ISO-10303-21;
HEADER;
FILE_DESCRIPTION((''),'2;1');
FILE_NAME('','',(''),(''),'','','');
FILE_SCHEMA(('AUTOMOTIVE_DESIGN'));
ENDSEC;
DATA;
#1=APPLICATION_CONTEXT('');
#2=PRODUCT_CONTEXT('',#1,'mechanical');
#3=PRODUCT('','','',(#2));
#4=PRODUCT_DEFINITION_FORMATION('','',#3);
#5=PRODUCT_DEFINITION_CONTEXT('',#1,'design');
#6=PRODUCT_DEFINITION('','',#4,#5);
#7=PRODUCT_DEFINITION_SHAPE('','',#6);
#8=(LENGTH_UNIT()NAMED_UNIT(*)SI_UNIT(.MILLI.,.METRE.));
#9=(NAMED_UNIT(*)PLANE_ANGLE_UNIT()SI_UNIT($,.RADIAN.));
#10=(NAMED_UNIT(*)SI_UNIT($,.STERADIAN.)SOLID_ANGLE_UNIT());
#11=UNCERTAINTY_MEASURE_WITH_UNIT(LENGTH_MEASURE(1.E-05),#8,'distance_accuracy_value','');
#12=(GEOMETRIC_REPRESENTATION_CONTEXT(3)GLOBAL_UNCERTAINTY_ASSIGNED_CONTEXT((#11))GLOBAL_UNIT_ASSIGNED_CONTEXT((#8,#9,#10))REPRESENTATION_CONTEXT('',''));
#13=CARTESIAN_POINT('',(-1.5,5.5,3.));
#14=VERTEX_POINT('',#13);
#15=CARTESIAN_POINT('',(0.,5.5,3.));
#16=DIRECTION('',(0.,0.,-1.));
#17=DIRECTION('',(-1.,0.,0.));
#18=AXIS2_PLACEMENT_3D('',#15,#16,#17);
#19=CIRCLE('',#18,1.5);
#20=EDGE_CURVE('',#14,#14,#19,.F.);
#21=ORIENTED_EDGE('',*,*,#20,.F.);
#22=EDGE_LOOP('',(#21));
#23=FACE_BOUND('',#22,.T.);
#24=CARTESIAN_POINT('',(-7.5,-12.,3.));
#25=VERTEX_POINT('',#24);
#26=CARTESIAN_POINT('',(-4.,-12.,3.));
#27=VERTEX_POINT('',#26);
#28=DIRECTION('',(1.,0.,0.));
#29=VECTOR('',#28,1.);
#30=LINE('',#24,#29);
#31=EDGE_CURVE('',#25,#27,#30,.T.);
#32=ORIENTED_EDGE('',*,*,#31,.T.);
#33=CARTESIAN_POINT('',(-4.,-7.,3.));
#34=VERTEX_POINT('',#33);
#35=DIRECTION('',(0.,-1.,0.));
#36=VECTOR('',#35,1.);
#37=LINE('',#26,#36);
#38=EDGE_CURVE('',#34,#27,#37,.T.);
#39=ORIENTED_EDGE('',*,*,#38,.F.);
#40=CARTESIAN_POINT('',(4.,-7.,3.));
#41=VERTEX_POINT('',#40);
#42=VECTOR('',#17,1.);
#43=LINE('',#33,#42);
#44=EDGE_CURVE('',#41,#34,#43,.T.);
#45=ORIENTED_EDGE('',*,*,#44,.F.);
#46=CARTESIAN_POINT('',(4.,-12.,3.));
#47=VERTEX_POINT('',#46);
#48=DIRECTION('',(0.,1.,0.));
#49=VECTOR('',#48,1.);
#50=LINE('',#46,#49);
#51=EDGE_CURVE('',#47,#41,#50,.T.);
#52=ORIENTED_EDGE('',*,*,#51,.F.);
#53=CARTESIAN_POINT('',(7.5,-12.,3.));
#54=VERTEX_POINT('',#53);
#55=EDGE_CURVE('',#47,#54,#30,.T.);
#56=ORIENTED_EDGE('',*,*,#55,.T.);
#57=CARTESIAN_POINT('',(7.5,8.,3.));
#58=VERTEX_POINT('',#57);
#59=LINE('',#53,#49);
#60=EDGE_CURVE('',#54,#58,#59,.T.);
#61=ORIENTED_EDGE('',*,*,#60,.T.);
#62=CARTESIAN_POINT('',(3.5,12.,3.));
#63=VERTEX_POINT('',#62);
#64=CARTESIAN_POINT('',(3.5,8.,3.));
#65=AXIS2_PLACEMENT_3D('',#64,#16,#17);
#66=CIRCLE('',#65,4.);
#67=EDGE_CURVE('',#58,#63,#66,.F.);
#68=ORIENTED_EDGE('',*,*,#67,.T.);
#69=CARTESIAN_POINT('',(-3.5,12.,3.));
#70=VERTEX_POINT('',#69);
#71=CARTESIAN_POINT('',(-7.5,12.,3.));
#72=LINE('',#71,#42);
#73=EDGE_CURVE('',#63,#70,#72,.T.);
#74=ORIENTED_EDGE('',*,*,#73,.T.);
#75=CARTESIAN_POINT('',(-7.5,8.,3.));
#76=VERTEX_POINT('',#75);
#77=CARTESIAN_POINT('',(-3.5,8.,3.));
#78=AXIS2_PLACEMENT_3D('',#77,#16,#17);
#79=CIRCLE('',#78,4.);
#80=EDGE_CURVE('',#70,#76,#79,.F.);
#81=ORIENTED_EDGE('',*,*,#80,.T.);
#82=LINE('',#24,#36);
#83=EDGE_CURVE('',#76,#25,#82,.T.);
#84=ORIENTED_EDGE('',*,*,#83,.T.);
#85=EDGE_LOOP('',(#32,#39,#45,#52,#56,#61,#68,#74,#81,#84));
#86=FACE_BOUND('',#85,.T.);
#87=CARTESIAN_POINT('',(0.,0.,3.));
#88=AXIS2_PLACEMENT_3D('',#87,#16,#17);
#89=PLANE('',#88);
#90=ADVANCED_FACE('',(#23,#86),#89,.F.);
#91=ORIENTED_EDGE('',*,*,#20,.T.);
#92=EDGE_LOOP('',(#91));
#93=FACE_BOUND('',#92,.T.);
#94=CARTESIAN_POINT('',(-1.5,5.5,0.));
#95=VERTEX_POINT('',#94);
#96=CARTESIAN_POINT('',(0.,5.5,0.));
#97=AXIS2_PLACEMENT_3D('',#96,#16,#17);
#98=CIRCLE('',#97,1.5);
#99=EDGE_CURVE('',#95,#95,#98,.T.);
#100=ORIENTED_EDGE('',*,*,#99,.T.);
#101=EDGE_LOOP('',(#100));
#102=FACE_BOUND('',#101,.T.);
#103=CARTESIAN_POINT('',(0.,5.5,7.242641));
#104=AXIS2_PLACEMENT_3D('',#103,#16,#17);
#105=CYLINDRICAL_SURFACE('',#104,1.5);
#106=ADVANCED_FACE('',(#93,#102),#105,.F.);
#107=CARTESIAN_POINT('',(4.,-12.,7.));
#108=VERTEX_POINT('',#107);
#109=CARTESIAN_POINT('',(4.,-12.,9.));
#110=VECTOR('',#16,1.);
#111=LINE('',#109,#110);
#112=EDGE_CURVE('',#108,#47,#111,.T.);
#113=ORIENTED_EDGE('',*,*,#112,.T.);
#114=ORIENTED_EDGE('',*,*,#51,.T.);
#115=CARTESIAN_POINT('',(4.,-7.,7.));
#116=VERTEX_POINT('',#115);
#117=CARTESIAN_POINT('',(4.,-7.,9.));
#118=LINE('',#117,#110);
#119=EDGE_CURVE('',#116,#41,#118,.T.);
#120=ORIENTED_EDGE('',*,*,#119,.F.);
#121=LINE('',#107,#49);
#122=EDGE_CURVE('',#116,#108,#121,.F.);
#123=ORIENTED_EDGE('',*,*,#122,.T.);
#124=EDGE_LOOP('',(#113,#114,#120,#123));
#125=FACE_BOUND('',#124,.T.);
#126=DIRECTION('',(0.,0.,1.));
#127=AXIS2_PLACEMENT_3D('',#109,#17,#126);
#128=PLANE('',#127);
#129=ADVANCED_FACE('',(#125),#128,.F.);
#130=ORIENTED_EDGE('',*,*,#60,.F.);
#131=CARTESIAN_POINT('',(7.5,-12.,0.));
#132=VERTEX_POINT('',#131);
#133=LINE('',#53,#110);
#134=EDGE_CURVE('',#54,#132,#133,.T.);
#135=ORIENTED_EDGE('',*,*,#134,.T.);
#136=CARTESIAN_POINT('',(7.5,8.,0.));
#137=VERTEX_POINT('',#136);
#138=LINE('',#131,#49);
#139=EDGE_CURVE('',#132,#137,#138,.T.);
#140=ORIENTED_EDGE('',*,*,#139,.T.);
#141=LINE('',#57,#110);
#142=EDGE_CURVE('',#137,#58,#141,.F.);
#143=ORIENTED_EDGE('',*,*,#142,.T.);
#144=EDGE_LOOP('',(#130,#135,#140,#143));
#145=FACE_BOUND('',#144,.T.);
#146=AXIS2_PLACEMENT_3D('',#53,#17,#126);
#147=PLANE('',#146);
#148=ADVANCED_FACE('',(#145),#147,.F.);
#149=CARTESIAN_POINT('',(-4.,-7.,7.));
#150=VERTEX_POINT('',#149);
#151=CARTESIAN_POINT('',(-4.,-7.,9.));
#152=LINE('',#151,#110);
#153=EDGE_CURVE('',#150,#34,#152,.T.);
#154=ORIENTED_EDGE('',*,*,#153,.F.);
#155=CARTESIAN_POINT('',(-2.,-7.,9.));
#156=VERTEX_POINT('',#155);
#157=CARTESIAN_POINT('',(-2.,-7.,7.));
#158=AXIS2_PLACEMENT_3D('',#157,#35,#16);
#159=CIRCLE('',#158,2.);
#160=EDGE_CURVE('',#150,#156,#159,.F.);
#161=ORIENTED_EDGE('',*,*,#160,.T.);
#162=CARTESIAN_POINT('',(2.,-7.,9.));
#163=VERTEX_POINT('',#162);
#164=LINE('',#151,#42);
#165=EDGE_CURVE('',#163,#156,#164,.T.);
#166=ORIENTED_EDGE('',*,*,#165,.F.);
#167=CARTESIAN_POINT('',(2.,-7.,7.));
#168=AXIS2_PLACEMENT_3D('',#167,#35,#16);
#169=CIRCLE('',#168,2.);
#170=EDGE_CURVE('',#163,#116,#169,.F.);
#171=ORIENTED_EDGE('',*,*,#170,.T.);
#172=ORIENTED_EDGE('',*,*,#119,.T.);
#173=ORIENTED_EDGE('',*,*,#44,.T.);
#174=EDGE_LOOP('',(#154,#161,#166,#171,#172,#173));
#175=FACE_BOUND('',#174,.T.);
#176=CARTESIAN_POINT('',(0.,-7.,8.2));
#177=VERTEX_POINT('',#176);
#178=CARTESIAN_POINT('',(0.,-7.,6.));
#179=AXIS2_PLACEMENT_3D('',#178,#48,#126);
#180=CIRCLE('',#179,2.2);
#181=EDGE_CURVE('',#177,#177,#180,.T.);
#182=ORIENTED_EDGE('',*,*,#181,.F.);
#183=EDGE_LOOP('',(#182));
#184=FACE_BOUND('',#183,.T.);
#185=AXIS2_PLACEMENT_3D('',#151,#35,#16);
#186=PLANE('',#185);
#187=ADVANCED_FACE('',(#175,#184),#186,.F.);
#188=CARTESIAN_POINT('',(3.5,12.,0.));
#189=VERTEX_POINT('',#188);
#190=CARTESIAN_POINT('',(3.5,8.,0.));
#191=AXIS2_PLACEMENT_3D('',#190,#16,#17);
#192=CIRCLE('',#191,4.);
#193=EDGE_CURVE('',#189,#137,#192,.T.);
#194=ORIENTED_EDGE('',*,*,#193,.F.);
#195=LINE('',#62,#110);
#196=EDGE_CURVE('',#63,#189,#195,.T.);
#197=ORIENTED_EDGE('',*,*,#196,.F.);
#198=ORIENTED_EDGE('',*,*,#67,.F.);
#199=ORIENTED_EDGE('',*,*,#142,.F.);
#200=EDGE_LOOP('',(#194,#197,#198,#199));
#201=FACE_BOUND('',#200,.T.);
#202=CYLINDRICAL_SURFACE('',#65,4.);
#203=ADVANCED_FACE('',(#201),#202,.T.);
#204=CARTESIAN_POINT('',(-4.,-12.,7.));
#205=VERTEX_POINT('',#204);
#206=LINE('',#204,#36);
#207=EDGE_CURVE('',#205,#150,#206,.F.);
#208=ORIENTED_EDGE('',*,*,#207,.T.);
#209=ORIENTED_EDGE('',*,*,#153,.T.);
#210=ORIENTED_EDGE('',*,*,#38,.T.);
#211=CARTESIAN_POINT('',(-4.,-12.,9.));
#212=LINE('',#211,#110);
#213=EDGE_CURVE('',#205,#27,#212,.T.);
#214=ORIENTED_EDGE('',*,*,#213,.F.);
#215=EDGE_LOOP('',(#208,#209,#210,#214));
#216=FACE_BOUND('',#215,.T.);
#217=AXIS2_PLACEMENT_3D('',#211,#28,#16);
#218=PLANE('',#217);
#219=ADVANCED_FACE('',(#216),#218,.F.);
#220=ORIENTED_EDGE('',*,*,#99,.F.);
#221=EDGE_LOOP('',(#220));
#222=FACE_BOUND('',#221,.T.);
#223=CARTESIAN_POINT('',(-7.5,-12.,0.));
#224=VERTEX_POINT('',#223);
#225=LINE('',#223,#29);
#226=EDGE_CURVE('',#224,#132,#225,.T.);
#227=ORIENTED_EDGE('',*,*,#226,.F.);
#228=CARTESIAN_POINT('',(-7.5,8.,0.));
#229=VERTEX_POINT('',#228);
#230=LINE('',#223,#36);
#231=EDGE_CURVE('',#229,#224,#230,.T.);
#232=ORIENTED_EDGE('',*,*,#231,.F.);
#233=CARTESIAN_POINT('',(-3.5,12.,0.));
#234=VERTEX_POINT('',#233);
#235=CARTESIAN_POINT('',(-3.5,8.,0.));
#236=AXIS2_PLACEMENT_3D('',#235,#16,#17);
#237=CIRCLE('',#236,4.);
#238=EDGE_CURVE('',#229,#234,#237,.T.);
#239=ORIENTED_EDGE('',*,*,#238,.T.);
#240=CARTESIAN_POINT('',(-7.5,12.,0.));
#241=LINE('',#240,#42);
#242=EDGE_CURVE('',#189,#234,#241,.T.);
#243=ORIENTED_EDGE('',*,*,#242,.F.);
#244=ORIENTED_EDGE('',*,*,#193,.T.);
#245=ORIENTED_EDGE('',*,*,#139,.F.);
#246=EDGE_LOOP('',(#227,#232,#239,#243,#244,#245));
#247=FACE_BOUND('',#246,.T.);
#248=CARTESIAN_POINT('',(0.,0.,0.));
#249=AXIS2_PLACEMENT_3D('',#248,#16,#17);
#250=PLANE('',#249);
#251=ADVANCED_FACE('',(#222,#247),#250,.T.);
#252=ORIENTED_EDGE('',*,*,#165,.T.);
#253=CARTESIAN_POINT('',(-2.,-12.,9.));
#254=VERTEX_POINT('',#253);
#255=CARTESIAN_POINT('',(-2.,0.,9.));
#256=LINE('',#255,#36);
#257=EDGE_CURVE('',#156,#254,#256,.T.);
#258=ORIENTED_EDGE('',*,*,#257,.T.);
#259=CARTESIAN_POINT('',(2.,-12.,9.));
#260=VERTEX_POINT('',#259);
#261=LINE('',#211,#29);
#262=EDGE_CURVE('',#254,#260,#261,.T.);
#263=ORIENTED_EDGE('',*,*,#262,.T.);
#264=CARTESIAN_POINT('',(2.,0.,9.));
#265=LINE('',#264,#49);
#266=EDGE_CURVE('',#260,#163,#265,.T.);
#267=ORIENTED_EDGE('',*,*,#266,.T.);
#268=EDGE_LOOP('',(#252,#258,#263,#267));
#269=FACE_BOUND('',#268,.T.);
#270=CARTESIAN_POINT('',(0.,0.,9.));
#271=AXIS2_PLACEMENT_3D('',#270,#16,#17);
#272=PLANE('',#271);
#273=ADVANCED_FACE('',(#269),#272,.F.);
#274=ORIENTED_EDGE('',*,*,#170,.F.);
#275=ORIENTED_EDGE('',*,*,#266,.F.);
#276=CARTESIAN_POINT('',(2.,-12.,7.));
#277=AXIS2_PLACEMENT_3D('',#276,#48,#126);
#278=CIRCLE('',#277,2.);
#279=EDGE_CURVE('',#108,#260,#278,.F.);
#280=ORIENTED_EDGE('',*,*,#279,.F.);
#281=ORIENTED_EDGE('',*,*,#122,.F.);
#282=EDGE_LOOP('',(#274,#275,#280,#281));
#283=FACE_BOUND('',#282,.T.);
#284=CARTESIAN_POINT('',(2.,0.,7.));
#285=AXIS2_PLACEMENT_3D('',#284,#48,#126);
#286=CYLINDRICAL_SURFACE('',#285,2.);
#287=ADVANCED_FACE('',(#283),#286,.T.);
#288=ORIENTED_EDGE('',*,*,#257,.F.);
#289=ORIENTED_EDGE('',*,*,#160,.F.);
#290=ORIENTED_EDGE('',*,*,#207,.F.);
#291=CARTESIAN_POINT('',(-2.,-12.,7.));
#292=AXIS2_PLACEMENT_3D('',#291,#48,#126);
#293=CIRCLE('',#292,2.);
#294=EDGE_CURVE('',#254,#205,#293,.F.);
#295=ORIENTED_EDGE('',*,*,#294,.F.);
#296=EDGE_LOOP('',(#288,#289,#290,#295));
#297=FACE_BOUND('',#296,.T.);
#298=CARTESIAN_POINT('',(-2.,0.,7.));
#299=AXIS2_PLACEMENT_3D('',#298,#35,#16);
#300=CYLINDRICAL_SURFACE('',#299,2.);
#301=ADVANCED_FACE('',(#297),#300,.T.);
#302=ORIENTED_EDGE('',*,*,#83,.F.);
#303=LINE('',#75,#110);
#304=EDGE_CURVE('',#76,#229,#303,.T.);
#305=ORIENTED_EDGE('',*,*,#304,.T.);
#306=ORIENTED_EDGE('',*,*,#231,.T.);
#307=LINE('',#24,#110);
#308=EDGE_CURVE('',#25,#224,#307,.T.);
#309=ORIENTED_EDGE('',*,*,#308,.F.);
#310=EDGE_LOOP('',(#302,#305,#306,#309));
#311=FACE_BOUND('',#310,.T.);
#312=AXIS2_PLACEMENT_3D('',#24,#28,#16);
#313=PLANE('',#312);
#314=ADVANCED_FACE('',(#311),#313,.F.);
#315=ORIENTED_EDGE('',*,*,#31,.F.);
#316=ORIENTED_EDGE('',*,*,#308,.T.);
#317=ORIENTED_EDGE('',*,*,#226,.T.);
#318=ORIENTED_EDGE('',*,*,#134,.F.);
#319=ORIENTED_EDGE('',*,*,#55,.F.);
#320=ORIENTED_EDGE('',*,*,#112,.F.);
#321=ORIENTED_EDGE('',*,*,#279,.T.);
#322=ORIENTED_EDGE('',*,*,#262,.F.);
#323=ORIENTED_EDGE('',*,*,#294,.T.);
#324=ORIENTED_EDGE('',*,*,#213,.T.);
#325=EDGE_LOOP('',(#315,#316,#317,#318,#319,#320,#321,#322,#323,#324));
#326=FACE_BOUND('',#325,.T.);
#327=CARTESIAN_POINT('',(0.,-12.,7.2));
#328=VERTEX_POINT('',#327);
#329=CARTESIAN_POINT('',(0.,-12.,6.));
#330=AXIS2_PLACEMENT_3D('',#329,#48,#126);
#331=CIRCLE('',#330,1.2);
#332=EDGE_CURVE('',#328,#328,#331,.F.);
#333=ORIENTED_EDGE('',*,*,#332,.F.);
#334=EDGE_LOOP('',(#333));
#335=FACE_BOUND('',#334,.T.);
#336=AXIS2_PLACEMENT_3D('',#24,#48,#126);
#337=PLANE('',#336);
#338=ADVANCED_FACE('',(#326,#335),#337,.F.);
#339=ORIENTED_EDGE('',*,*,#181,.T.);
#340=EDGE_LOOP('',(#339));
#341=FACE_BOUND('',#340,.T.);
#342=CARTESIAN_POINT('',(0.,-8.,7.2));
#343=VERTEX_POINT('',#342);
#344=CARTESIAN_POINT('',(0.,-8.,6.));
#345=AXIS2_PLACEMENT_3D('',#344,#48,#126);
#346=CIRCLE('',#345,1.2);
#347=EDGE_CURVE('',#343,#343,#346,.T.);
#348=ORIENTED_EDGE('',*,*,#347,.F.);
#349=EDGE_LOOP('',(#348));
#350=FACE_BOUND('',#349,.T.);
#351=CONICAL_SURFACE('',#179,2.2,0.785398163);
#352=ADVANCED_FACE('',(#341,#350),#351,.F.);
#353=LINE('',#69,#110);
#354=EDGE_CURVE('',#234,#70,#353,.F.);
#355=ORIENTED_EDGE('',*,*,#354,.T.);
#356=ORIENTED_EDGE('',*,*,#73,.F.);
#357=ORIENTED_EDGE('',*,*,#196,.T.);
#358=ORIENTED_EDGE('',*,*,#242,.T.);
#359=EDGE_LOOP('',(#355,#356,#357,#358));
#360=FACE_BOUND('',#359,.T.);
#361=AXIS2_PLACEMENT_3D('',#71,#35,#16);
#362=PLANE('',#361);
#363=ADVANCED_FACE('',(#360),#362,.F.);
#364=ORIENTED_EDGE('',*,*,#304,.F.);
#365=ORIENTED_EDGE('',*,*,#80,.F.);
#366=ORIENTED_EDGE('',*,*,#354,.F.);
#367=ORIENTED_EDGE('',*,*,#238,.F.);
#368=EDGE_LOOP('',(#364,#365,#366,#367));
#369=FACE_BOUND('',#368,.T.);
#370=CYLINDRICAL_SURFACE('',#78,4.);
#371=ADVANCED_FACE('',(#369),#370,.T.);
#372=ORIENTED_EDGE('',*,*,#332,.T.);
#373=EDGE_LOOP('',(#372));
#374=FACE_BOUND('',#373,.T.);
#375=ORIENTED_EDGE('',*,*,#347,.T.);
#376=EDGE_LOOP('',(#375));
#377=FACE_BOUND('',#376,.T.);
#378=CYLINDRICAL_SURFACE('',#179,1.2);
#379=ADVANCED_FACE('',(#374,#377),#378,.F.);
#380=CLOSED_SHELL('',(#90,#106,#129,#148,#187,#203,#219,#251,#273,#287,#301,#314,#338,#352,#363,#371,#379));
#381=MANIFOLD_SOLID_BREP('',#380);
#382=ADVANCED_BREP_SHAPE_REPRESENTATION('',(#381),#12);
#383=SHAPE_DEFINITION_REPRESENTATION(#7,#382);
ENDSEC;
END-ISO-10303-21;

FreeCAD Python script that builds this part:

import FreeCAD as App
import Part
import Sketcher
Q = App.Units.Quantity


def edges_at(feature, points):
    """Names of the edges that pass closest to the given points."""
    edges = feature.Shape.Edges
    near = lambda p: min(range(len(edges)), key=lambda i: edges[i].distToShape(Part.Vertex(*p))[0])
    return sorted({f"Edge{near(p) + 1}" for p in points})

doc = App.newDocument("Part")
body = doc.addObject("PartDesign::Body", "Body")

# Sketch on XY plane
sketch1 = body.newObject("Sketcher::SketchObject", "Sketch")
sketch1.AttachmentSupport = (doc.getObject("XY_Plane"), [""])
sketch1.MapMode = "FlatFace"
sketch1.addGeometry(Part.LineSegment(App.Vector(-8, 12, 0), App.Vector(-8, -12, 0)), False)
sketch1.addGeometry(Part.LineSegment(App.Vector(-8, -12, 0), App.Vector(8, -12, 0)), False)
sketch1.addGeometry(Part.LineSegment(App.Vector(8, -12, 0), App.Vector(8, 12, 0)), False)
sketch1.addGeometry(Part.LineSegment(App.Vector(8, 12, 0), App.Vector(-8, 12, 0)), False)
sketch1.addConstraint(Sketcher.Constraint("Coincident", 0, 2, 1, 1))
sketch1.addConstraint(Sketcher.Constraint("Coincident", 1, 2, 2, 1))
sketch1.addConstraint(Sketcher.Constraint("Coincident", 2, 2, 3, 1))
sketch1.addConstraint(Sketcher.Constraint("Coincident", 3, 2, 0, 1))
sketch1.addConstraint(Sketcher.Constraint("Vertical", 0))
sketch1.addConstraint(Sketcher.Constraint("Horizontal", 1))
sketch1.addConstraint(Sketcher.Constraint("Vertical", 2))
sketch1.addConstraint(Sketcher.Constraint("Horizontal", 3))
sketch1.addConstraint(Sketcher.Constraint("Symmetric", 0, 2, 2, 2, -1, 1))
sketch1.addConstraint(Sketcher.Constraint("DistanceX", 1, 1, 1, 2, Q("15 mm")))
sketch1.addConstraint(Sketcher.Constraint("DistanceY", 0, 2, 0, 1, Q("24 mm")))
pad1 = body.newObject("PartDesign::Pad", "Pad")
pad1.Profile = sketch1
pad1.Length = 3

# Sketch on XY plane
sketch2 = body.newObject("Sketcher::SketchObject", "Sketch001")
sketch2.AttachmentSupport = (doc.getObject("XY_Plane"), [""])
sketch2.MapMode = "FlatFace"
sketch2.AttachmentOffset = App.Placement(App.Vector(0, 0, 3), App.Rotation())
sketch2.addGeometry(Part.LineSegment(App.Vector(-4, -7, 0), App.Vector(-4, -12, 0)), False)
sketch2.addGeometry(Part.LineSegment(App.Vector(-4, -12, 0), App.Vector(4, -12, 0)), False)
sketch2.addGeometry(Part.LineSegment(App.Vector(4, -12, 0), App.Vector(4, -7, 0)), False)
sketch2.addGeometry(Part.LineSegment(App.Vector(4, -7, 0), App.Vector(-4, -7, 0)), False)
sketch2.addConstraint(Sketcher.Constraint("Coincident", 0, 2, 1, 1))
sketch2.addConstraint(Sketcher.Constraint("Coincident", 1, 2, 2, 1))
sketch2.addConstraint(Sketcher.Constraint("Coincident", 2, 2, 3, 1))
sketch2.addConstraint(Sketcher.Constraint("Coincident", 3, 2, 0, 1))
sketch2.addConstraint(Sketcher.Constraint("Vertical", 0))
sketch2.addConstraint(Sketcher.Constraint("Horizontal", 1))
sketch2.addConstraint(Sketcher.Constraint("Vertical", 2))
sketch2.addConstraint(Sketcher.Constraint("Horizontal", 3))
sketch2.addConstraint(Sketcher.Constraint("DistanceX", 1, 1, 1, 2, Q("8 mm")))
sketch2.addConstraint(Sketcher.Constraint("DistanceY", 0, 2, 0, 1, Q("5 mm")))
sketch2.addConstraint(Sketcher.Constraint("DistanceX", 0, 2, -1, 1, Q("4 mm")))
sketch2.addConstraint(Sketcher.Constraint("DistanceY", 0, 2, -1, 1, Q("12 mm")))
pad2 = body.newObject("PartDesign::Pad", "Pad001")
pad2.Profile = sketch2
pad2.Length = 6

# Sketch on XZ plane
sketch3 = body.newObject("Sketcher::SketchObject", "Sketch002")
sketch3.AttachmentSupport = (doc.getObject("XZ_Plane"), [""])
sketch3.MapMode = "FlatFace"
sketch3.AttachmentOffset = App.Placement(App.Vector(0, 0, 7), App.Rotation())
sketch3.addGeometry(Part.Circle(App.Vector(0, 6, 0), App.Vector(0, 0, 1), 1.2), False)
sketch3.addConstraint(Sketcher.Constraint("PointOnObject", 0, 3, -2))
sketch3.addConstraint(Sketcher.Constraint("Diameter", 0, Q("2.4 mm")))
sketch3.addConstraint(Sketcher.Constraint("DistanceY", -1, 1, 0, 3, Q("6 mm")))
doc.recompute()
hole = body.newObject("PartDesign::Hole", "Hole")
hole.Profile = sketch3
hole.ThreadType = "None"
hole.Diameter = 2.4
hole.DepthType = "ThroughAll"
hole.HoleCutType = "Countersink"
hole.HoleCutDiameter = 4.4
hole.HoleCutCountersinkAngle = 90
hole.Reversed = True
doc.recompute()

fillet = body.newObject("PartDesign::Fillet", "Fillet")
fillet.Base = (hole, edges_at(hole, [(-4, -9.5, 9), (4, -9.5, 9)]))
fillet.Radius = 2

# Sketch on XY plane
sketch4 = body.newObject("Sketcher::SketchObject", "Sketch003")
sketch4.AttachmentSupport = (doc.getObject("XY_Plane"), [""])
sketch4.MapMode = "FlatFace"
sketch4.addGeometry(Part.Circle(App.Vector(0, 5.5, 0), App.Vector(0, 0, 1), 1.5), False)
sketch4.addConstraint(Sketcher.Constraint("PointOnObject", 0, 3, -2))
sketch4.addConstraint(Sketcher.Constraint("Diameter", 0, Q("3 mm")))
sketch4.addConstraint(Sketcher.Constraint("DistanceY", -1, 1, 0, 3, Q("5.5 mm")))
pocket1 = body.newObject("PartDesign::Pocket", "Pocket")
pocket1.Profile = sketch4
pocket1.Length = 3
pocket1.Reversed = True
doc.recompute()

fillet2 = body.newObject("PartDesign::Fillet", "Fillet001")
fillet2.Base = (pocket1, edges_at(pocket1, [(-7.5, 12, 1.5), (7.5, 12, 1.5)]))
fillet2.Radius = 4

doc.recompute()
